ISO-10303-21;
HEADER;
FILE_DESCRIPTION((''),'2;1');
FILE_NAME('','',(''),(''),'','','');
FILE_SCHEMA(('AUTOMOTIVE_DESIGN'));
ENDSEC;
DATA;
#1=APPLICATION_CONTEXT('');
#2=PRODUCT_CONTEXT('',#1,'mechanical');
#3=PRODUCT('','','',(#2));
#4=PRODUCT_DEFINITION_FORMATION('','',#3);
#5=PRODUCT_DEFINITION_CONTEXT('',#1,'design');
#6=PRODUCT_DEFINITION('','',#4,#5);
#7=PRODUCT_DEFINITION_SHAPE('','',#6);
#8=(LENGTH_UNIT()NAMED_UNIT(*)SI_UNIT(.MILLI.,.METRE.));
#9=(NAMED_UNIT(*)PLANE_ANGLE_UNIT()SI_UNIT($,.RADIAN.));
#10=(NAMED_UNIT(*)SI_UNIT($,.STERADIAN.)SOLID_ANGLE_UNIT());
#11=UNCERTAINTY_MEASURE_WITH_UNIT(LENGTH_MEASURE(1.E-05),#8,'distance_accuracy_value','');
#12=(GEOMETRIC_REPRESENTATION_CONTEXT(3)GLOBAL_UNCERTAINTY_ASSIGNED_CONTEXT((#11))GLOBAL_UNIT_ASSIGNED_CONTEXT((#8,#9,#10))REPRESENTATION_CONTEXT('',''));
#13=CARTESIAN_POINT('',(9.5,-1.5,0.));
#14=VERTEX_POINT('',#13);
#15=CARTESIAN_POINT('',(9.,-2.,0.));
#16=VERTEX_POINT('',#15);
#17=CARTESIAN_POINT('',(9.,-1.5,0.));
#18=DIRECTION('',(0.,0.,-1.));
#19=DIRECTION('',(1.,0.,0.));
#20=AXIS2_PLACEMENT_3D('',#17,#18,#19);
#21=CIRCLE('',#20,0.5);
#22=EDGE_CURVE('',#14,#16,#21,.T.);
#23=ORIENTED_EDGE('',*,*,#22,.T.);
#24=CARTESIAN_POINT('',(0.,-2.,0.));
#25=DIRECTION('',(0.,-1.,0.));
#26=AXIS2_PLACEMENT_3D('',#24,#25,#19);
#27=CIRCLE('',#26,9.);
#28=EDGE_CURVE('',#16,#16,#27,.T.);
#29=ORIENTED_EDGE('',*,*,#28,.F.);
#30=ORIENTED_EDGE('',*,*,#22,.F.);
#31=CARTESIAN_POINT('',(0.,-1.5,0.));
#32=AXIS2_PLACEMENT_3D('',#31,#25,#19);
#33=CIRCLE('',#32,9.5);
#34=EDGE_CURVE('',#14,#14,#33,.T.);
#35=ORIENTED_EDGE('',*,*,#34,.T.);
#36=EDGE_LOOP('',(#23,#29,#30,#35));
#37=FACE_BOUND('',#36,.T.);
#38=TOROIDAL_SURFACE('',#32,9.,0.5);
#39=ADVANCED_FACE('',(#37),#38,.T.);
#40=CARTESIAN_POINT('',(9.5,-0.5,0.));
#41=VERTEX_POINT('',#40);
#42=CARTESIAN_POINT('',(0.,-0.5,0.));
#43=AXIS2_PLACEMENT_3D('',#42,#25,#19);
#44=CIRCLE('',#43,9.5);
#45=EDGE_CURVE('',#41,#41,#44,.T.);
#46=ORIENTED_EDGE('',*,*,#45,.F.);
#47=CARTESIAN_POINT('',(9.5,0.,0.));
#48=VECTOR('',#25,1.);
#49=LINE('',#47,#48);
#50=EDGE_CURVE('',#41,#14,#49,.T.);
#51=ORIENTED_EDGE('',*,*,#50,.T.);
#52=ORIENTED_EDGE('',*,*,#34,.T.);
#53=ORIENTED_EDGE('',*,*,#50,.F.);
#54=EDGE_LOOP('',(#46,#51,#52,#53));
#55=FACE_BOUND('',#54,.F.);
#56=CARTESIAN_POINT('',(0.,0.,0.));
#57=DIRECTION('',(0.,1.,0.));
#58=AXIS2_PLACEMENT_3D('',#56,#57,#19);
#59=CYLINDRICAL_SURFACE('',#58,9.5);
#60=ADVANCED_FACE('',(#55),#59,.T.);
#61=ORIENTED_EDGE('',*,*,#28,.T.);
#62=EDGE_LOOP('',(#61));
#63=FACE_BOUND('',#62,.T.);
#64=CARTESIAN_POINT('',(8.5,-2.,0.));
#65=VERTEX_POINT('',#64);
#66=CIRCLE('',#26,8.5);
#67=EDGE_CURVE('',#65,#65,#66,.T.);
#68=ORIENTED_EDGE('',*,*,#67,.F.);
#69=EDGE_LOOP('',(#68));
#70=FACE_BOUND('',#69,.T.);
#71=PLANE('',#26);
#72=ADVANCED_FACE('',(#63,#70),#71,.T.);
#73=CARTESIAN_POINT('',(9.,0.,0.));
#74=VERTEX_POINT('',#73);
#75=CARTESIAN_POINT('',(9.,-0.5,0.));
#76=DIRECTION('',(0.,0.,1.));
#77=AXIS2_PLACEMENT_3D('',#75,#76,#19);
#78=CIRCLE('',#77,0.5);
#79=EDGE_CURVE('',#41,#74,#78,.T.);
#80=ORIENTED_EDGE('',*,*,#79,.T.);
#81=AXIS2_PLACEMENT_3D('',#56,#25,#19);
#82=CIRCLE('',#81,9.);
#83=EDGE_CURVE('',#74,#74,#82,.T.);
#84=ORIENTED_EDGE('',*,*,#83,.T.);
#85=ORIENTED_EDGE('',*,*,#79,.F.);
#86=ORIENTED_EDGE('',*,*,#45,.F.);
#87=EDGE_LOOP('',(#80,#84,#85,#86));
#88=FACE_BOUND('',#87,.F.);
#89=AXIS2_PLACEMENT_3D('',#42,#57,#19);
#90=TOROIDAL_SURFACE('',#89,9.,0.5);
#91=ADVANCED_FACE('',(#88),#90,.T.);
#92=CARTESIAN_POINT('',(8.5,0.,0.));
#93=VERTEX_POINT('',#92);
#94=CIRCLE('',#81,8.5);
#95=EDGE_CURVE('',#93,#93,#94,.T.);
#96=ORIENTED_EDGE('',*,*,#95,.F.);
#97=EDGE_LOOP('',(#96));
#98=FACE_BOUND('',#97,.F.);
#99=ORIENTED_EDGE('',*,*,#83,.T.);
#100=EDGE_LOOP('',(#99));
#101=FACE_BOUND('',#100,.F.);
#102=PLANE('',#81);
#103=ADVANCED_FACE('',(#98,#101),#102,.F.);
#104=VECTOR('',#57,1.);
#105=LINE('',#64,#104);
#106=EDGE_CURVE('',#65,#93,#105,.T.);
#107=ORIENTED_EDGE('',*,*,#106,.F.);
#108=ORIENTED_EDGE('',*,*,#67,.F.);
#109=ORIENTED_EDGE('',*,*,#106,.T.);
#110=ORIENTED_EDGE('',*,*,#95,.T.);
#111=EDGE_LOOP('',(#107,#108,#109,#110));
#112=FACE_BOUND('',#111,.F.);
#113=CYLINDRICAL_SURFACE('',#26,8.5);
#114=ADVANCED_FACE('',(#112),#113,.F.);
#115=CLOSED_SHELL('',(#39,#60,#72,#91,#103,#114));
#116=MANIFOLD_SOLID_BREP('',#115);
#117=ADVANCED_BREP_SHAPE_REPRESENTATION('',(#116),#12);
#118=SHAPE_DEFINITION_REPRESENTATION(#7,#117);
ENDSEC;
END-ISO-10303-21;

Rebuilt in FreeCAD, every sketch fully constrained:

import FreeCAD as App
import Part
import Sketcher
from FreeCAD import Vector


def edges_at(feature, points):
    """Names of the edges that pass closest to the given points."""
    edges = feature.Shape.Edges
    near = lambda p: min(range(len(edges)), key=lambda i: edges[i].distToShape(Part.Vertex(*p))[0])
    return sorted({f"Edge{near(p) + 1}" for p in points})

doc = App.newDocument("Part")
params = doc.addObject("Spreadsheet::Sheet", "Params")
for row, (alias, value) in enumerate([
    ("sketch1_diameter", "19 mm"),
    ("pad1_length", "2 mm"),
    ("sketch2_diameter", "17 mm"),
    ("fillet_radius", "0.5 mm"),
], start=1):
    params.set(f"A{row}", alias)
    params.set(f"B{row}", "=" + value)
    params.setAlias(f"B{row}", alias)

body = doc.addObject("PartDesign::Body", "Body")

sketch1 = doc.addObject("Sketcher::SketchObject", "Sketch")
body.addObject(sketch1)
sketch1.AttachmentSupport = (doc.XZ_Plane, [""])
sketch1.MapMode = "FlatFace"
sketch1.addGeometry(Part.Circle(Vector(0, 0, 0), Vector(0, 0, 1), 10), False)
sketch1.addConstraint(Sketcher.Constraint("Coincident", 0, 3, -1, 1))
sketch1.addConstraint(Sketcher.Constraint("Diameter", 0, 19.0))
sketch1.setExpression("Constraints[1]", "Params.sketch1_diameter")
pad1 = doc.addObject("PartDesign::Pad", "Pad")
body.addObject(pad1)
pad1.Profile = sketch1
pad1.setExpression("Length", "Params.pad1_length")

sketch2 = doc.addObject("Sketcher::SketchObject", "Sketch001")
body.addObject(sketch2)
sketch2.AttachmentSupport = (doc.XZ_Plane, [""])
sketch2.MapMode = "FlatFace"
sketch2.AttachmentOffset = App.Placement(Vector(0, 0, 2), App.Rotation())
sketch2.addGeometry(Part.Circle(Vector(0, 0, 0), Vector(0, 0, 1), 8), False)
sketch2.addConstraint(Sketcher.Constraint("Coincident", 0, 3, -1, 1))
sketch2.addConstraint(Sketcher.Constraint("Diameter", 0, 17.0))
sketch2.setExpression("Constraints[1]", "Params.sketch2_diameter")
pocket1 = doc.addObject("PartDesign::Pocket", "Pocket")
body.addObject(pocket1)
pocket1.Profile = sketch2
pocket1.Type = "ThroughAll"
doc.recompute()

fillet = doc.addObject("PartDesign::Fillet", "Fillet")
body.addObject(fillet)
fillet.Base = (pocket1, edges_at(pocket1, [(-9.5, -2, 0), (-9.5, 0, 0)]))
fillet.setExpression("Radius", "Params.fillet_radius")

doc.recompute()
